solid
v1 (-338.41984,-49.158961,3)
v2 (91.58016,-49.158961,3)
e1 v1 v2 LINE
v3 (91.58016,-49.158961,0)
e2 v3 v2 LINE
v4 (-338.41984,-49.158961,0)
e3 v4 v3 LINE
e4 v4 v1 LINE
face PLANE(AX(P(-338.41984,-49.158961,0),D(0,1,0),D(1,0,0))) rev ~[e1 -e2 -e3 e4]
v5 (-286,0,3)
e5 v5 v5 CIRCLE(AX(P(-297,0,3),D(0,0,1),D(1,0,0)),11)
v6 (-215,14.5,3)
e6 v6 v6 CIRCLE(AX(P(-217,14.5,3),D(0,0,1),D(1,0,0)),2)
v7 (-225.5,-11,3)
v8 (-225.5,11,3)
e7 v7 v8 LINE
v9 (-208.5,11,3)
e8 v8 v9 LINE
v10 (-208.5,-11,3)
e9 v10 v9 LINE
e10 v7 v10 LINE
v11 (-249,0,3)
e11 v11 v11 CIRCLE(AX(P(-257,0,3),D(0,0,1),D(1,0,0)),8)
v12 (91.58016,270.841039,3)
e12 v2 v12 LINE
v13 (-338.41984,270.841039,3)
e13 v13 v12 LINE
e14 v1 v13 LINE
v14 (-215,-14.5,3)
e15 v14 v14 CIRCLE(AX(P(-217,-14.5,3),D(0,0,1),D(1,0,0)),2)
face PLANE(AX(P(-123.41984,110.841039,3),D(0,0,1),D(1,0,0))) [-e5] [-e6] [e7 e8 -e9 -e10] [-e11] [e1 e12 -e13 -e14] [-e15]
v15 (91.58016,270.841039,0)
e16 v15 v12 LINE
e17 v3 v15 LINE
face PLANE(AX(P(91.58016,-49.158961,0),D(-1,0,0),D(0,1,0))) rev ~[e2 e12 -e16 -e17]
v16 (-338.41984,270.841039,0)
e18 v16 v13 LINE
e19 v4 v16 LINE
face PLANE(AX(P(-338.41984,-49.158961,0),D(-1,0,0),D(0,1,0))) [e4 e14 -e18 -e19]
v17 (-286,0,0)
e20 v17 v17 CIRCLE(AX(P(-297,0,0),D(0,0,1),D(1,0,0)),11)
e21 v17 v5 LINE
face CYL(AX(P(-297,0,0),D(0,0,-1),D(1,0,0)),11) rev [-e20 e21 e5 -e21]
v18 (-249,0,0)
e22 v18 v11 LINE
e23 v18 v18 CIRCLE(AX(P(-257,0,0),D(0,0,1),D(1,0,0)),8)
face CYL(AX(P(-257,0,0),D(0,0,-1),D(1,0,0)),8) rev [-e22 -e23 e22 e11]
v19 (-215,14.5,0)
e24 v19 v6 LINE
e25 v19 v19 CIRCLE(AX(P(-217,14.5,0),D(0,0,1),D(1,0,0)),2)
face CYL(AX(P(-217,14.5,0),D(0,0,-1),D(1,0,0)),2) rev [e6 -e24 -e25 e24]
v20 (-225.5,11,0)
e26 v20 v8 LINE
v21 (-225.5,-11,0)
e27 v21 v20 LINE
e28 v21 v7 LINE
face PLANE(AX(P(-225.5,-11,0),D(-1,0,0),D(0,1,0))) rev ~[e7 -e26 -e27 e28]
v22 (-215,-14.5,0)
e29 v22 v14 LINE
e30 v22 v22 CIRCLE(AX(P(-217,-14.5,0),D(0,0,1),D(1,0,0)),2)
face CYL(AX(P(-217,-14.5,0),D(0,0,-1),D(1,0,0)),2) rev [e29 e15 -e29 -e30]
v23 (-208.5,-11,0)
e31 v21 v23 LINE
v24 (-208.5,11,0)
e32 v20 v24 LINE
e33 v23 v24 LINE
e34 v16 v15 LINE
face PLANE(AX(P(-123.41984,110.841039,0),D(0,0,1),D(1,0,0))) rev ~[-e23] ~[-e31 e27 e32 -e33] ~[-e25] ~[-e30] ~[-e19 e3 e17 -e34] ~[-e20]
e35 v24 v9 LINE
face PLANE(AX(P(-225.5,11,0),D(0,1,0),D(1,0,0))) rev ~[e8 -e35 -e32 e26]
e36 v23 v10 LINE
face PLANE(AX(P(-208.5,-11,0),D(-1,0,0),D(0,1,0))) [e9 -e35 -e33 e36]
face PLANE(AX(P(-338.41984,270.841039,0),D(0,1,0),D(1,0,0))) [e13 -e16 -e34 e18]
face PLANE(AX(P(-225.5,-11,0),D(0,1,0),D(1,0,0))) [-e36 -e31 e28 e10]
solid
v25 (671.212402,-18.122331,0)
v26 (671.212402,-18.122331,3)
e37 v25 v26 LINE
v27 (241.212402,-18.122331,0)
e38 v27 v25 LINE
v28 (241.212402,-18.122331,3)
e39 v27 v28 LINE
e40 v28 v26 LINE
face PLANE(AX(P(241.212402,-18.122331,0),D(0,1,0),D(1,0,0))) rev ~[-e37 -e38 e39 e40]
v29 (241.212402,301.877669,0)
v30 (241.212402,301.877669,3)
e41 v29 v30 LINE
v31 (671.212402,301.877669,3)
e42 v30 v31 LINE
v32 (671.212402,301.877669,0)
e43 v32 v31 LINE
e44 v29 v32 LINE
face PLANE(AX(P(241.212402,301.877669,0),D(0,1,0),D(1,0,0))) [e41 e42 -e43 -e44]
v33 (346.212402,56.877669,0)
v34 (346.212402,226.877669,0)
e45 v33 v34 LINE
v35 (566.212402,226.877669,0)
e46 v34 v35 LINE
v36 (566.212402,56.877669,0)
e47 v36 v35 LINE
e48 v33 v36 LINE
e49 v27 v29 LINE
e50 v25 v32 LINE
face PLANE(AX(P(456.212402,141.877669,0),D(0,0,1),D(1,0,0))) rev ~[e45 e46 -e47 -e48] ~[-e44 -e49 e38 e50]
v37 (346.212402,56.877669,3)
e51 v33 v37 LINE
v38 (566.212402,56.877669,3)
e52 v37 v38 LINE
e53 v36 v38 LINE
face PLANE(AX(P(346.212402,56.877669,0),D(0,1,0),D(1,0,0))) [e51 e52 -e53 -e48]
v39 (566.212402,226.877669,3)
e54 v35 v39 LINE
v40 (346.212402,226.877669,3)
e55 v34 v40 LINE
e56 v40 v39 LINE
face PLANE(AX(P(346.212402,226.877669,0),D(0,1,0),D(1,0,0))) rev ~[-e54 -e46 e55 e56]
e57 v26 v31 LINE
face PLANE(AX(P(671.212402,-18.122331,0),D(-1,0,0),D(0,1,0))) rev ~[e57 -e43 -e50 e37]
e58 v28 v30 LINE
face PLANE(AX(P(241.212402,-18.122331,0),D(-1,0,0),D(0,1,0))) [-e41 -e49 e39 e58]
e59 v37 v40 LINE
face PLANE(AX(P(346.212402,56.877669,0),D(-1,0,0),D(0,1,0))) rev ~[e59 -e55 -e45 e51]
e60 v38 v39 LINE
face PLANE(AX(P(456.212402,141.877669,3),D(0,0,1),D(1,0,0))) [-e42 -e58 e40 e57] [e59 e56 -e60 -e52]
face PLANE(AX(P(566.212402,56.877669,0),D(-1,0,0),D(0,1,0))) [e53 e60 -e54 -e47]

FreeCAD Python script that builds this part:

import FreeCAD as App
import Part
import Sketcher

V = App.Vector
Q = App.Units.Quantity

doc = App.newDocument("Part")
body = doc.addObject("PartDesign::Body", "Body")

# Sketch on XY plane
sketch1 = doc.addObject("Sketcher::SketchObject", "Sketch")
body.addObject(sketch1)
sketch1.AttachmentSupport = (doc.XY_Plane, [""])
sketch1.MapMode = "FlatFace"
sketch1.addGeometry(Part.LineSegment(V(-338.4, 270.8, 0), V(-338.4, -49.2, 0)), False)
sketch1.addGeometry(Part.LineSegment(V(-338.4, -49.2, 0), V(91.6, -49.2, 0)), False)
sketch1.addGeometry(Part.LineSegment(V(91.6, -49.2, 0), V(91.6, 270.8, 0)), False)
sketch1.addGeometry(Part.LineSegment(V(91.6, 270.8, 0), V(-338.4, 270.8, 0)), False)
sketch1.addGeometry(Part.Circle(V(-217, -14.5, 0), V(0, 0, 1), 2), False)
sketch1.addGeometry(Part.Circle(V(-297, 0, 0), V(0, 0, 1), 11), False)
sketch1.addGeometry(Part.Circle(V(-257, 0, 0), V(0, 0, 1), 8), False)
sketch1.addGeometry(Part.LineSegment(V(-208.5, -11, 0), V(-225.5, -11, 0)), False)
sketch1.addGeometry(Part.LineSegment(V(-225.5, -11, 0), V(-225.5, 11, 0)), False)
sketch1.addGeometry(Part.LineSegment(V(-225.5, 11, 0), V(-208.5, 11, 0)), False)
sketch1.addGeometry(Part.LineSegment(V(-208.5, 11, 0), V(-208.5, -11, 0)), False)
sketch1.addGeometry(Part.Circle(V(-217, 14.5, 0), V(0, 0, 1), 2), False)
sketch1.addConstraint(Sketcher.Constraint("Coincident", 0, 2, 1, 1))
sketch1.addConstraint(Sketcher.Constraint("Coincident", 1, 2, 2, 1))
sketch1.addConstraint(Sketcher.Constraint("Coincident", 2, 2, 3, 1))
sketch1.addConstraint(Sketcher.Constraint("Coincident", 3, 2, 0, 1))
sketch1.addConstraint(Sketcher.Constraint("Coincident", 7, 2, 8, 1))
sketch1.addConstraint(Sketcher.Constraint("Coincident", 8, 2, 9, 1))
sketch1.addConstraint(Sketcher.Constraint("Coincident", 9, 2, 10, 1))
sketch1.addConstraint(Sketcher.Constraint("Coincident", 10, 2, 7, 1))
sketch1.addConstraint(Sketcher.Constraint("Vertical", 0))
sketch1.addConstraint(Sketcher.Constraint("Horizontal", 1))
sketch1.addConstraint(Sketcher.Constraint("Vertical", 2))
sketch1.addConstraint(Sketcher.Constraint("Horizontal", 3))
sketch1.addConstraint(Sketcher.Constraint("Horizontal", 7))
sketch1.addConstraint(Sketcher.Constraint("Vertical", 8))
sketch1.addConstraint(Sketcher.Constraint("Horizontal", 9))
sketch1.addConstraint(Sketcher.Constraint("Vertical", 10))
sketch1.addConstraint(Sketcher.Constraint("Equal", 4, 11))
sketch1.addConstraint(Sketcher.Constraint("Symmetric", 4, 3, 11, 3, -1))
sketch1.addConstraint(Sketcher.Constraint("PointOnObject", 5, 3, -1))
sketch1.addConstraint(Sketcher.Constraint("PointOnObject", 6, 3, -1))
sketch1.addConstraint(Sketcher.Constraint("Diameter", 4, Q("4 mm")))
sketch1.addConstraint(Sketcher.Constraint("Diameter", 5, Q("22 mm")))
sketch1.addConstraint(Sketcher.Constraint("Diameter", 6, Q("16 mm")))
sketch1.addConstraint(Sketcher.Constraint("DistanceX", 1, 1, 1, 2, Q("430 mm")))
sketch1.addConstraint(Sketcher.Constraint("DistanceX", 7, 2, 7, 1, Q("17 mm")))
sketch1.addConstraint(Sketcher.Constraint("DistanceY", 0, 2, 0, 1, Q("320 mm")))
sketch1.addConstraint(Sketcher.Constraint("DistanceY", 8, 1, 8, 2, Q("22 mm")))
sketch1.addConstraint(Sketcher.Constraint("DistanceX", 4, 3, -1, 1, Q("217 mm")))
sketch1.addConstraint(Sketcher.Constraint("DistanceX", 5, 3, -1, 1, Q("297 mm")))
sketch1.addConstraint(Sketcher.Constraint("DistanceX", 6, 3, -1, 1, Q("257 mm")))
sketch1.addConstraint(Sketcher.Constraint("DistanceY", 7, 2, -1, 1, Q("11 mm")))
sketch1.addConstraint(Sketcher.Constraint("DistanceY", 4, 3, 11, 3, Q("29 mm")))
sketch1.addConstraint(Sketcher.Constraint("DistanceX", 7, 2, -1, 1, Q("225.5 mm")))
sketch1.addConstraint(Sketcher.Constraint("DistanceX", 0, 2, -1, 1, Q("338.41984 mm")))
sketch1.addConstraint(Sketcher.Constraint("DistanceY", 0, 2, -1, 1, Q("49.158961 mm")))
pad1 = doc.addObject("PartDesign::Pad", "Pad")
body.addObject(pad1)
pad1.Profile = sketch1
pad1.Length = 3
body2 = doc.addObject("PartDesign::Body", "Body001")

# Sketch on XY plane
sketch2 = doc.addObject("Sketcher::SketchObject", "Sketch001")
body2.addObject(sketch2)
sketch2.AttachmentSupport = (doc.getObject("XY_Plane001"), [""])
sketch2.MapMode = "FlatFace"
sketch2.addGeometry(Part.LineSegment(V(241, 302, 0), V(241, -18, 0)), False)
sketch2.addGeometry(Part.LineSegment(V(241, -18, 0), V(671, -18, 0)), False)
sketch2.addGeometry(Part.LineSegment(V(671, -18, 0), V(671, 302, 0)), False)
sketch2.addGeometry(Part.LineSegment(V(671, 302, 0), V(241, 302, 0)), False)
sketch2.addGeometry(Part.LineSegment(V(566, 57, 0), V(346, 57, 0)), False)
sketch2.addGeometry(Part.LineSegment(V(346, 57, 0), V(346, 227, 0)), False)
sketch2.addGeometry(Part.LineSegment(V(346, 227, 0), V(566, 227, 0)), False)
sketch2.addGeometry(Part.LineSegment(V(566, 227, 0), V(566, 57, 0)), False)
sketch2.addConstraint(Sketcher.Constraint("Coincident", 0, 2, 1, 1))
sketch2.addConstraint(Sketcher.Constraint("Coincident", 1, 2, 2, 1))
sketch2.addConstraint(Sketcher.Constraint("Coincident", 2, 2, 3, 1))
sketch2.addConstraint(Sketcher.Constraint("Coincident", 3, 2, 0, 1))
sketch2.addConstraint(Sketcher.Constraint("Coincident", 4, 2, 5, 1))
sketch2.addConstraint(Sketcher.Constraint("Coincident", 5, 2, 6, 1))
sketch2.addConstraint(Sketcher.Constraint("Coincident", 6, 2, 7, 1))
sketch2.addConstraint(Sketcher.Constraint("Coincident", 7, 2, 4, 1))
sketch2.addConstraint(Sketcher.Constraint("Vertical", 0))
sketch2.addConstraint(Sketcher.Constraint("Horizontal", 1))
sketch2.addConstraint(Sketcher.Constraint("Vertical", 2))
sketch2.addConstraint(Sketcher.Constraint("Horizontal", 3))
sketch2.addConstraint(Sketcher.Constraint("Horizontal", 4))
sketch2.addConstraint(Sketcher.Constraint("Vertical", 5))
sketch2.addConstraint(Sketcher.Constraint("Horizontal", 6))
sketch2.addConstraint(Sketcher.Constraint("Vertical", 7))
sketch2.addConstraint(Sketcher.Constraint("DistanceX", 1, 1, 1, 2, Q("430 mm")))
sketch2.addConstraint(Sketcher.Constraint("DistanceX", 4, 2, 4, 1, Q("220 mm")))
sketch2.addConstraint(Sketcher.Constraint("DistanceY", 0, 2, 0, 1, Q("320 mm")))
sketch2.addConstraint(Sketcher.Constraint("DistanceY", 5, 1, 5, 2, Q("170 mm")))
sketch2.addConstraint(Sketcher.Constraint("DistanceX", 0, 2, 4, 2, Q("105 mm")))
sketch2.addConstraint(Sketcher.Constraint("DistanceY", 0, 2, 4, 2, Q("75 mm")))
sketch2.addConstraint(Sketcher.Constraint("DistanceX", -1, 1, 0, 2, Q("241.212402 mm")))
sketch2.addConstraint(Sketcher.Constraint("DistanceY", 0, 2, -1, 1, Q("18.122331 mm")))
pad2 = doc.addObject("PartDesign::Pad", "Pad001")
body2.addObject(pad2)
pad2.Profile = sketch2
pad2.Length = 3

doc.recompute()
